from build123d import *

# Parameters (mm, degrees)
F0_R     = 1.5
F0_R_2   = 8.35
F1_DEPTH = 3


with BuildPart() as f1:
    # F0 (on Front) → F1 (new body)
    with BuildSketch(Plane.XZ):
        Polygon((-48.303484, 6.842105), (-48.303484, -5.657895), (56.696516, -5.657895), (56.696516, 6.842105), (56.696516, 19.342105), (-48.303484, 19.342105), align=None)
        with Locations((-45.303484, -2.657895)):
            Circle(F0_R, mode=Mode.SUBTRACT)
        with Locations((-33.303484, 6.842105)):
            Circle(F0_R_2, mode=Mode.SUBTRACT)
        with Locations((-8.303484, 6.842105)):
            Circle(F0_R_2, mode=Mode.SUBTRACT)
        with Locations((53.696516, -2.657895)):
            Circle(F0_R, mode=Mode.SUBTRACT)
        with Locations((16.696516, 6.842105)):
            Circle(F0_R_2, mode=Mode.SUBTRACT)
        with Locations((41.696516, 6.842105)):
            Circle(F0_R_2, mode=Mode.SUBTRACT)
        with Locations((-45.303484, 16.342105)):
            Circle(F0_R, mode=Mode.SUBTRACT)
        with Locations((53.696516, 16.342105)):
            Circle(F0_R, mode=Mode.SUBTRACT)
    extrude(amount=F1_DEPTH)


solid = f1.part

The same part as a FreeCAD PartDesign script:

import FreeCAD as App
import Part
import Sketcher

V = App.Vector
Q = App.Units.Quantity


def add_polygon(sketch, points):
    """Adds a closed chain of lines whose ends are joined by coincident constraints."""
    first, n = sketch.GeometryCount, len(points)
    for a, b in zip(points, points[1:] + points[:1]):
        sketch.addGeometry(Part.LineSegment(App.Vector(*a, 0), App.Vector(*b, 0)), False)
    for i in range(n):
        sketch.addConstraint(Sketcher.Constraint("Coincident", first + i, 2, first + (i + 1) % n, 1))

doc = App.newDocument("Part")
body = doc.addObject("PartDesign::Body", "Body")

# Sketch on XZ plane
sketch1 = body.newObject("Sketcher::SketchObject", "Sketch")
sketch1.AttachmentSupport = (doc.getObject("XZ_Plane"), [""])
sketch1.MapMode = "FlatFace"
add_polygon(sketch1, [(-48.3, -5.7), (56.7, -5.7), (56.7, 19.3), (-48.3, 19.3)])  # lines 0-3
sketch1.addGeometry(Part.Circle(V(-45.3, -2.7, 0), V(0, 0, 1), 1.5), False)  # 4
sketch1.addGeometry(Part.Circle(V(53.7, -2.7, 0), V(0, 0, 1), 1.5), False)  # 5
sketch1.addGeometry(Part.Circle(V(-33.3, 6.8, 0), V(0, 0, 1), 8.3), False)  # 6
sketch1.addGeometry(Part.Circle(V(-8.3, 6.8, 0), V(0, 0, 1), 8.3), False)  # 7
sketch1.addGeometry(Part.Circle(V(-45.3, 16.3, 0), V(0, 0, 1), 1.5), False)  # 8
sketch1.addGeometry(Part.Circle(V(16.7, 6.8, 0), V(0, 0, 1), 8.3), False)  # 9
sketch1.addGeometry(Part.Circle(V(41.7, 6.8, 0), V(0, 0, 1), 8.3), False)  # 10
sketch1.addGeometry(Part.Circle(V(53.7, 16.3, 0), V(0, 0, 1), 1.5), False)  # 11
sketch1.addConstraint([
    Sketcher.Constraint("Horizontal", 0),
    Sketcher.Constraint("Vertical", 1),
    Sketcher.Constraint("Horizontal", 2),
    Sketcher.Constraint("Vertical", 3),
    Sketcher.Constraint("Equal", 4, 5),
    Sketcher.Constraint("Equal", 6, 7),
    Sketcher.Constraint("Equal", 5, 8),
    Sketcher.Constraint("Equal", 7, 9),
    Sketcher.Constraint("Equal", 9, 10),
    Sketcher.Constraint("Equal", 8, 11),
    Sketcher.Constraint("Horizontal", 4, 3, 5, 3),
    Sketcher.Constraint("Horizontal", 6, 3, 7, 3),
    Sketcher.Constraint("Horizontal", 7, 3, 9, 3),
    Sketcher.Constraint("Horizontal", 9, 3, 10, 3),
    Sketcher.Constraint("Horizontal", 8, 3, 11, 3),
    Sketcher.Constraint("Vertical", 4, 3, 8, 3),
    Sketcher.Constraint("Vertical", 5, 3, 11, 3),
    Sketcher.Constraint("Diameter", 4, Q("3 mm")),
    Sketcher.Constraint("Diameter", 6, Q("16.7 mm")),
    Sketcher.Constraint("DistanceX", 0, 1, 0, 2, Q("105 mm")),
    Sketcher.Constraint("DistanceY", 1, 1, 1, 2, Q("25 mm")),
    Sketcher.Constraint("DistanceX", 4, 3, 5, 3, Q("99 mm")),
    Sketcher.Constraint("DistanceX", 4, 3, 6, 3, Q("12 mm")),
    Sketcher.Constraint("DistanceX", 6, 3, 7, 3, Q("25 mm")),
    Sketcher.Constraint("DistanceY", 4, 3, 8, 3, Q("19 mm")),
    Sketcher.Constraint("DistanceX", 7, 3, 9, 3, Q("25 mm")),
    Sketcher.Constraint("DistanceX", 10, 3, 5, 3, Q("12 mm")),
    Sketcher.Constraint("DistanceX", 5, 3, 0, 2, Q("3 mm")),
    Sketcher.Constraint("DistanceY", 0, 2, 5, 3, Q("3 mm")),
    Sketcher.Constraint("DistanceY", 4, 3, 6, 3, Q("9.5 mm")),
    Sketcher.Constraint("DistanceX", 4, 3, -1, 1, Q("45.303484 mm")),
    Sketcher.Constraint("DistanceY", 4, 3, -1, 1, Q("2.657895 mm")),
])
pad1 = body.newObject("PartDesign::Pad", "Pad")
pad1.Profile = sketch1
pad1.Length = 3

doc.recompute()
